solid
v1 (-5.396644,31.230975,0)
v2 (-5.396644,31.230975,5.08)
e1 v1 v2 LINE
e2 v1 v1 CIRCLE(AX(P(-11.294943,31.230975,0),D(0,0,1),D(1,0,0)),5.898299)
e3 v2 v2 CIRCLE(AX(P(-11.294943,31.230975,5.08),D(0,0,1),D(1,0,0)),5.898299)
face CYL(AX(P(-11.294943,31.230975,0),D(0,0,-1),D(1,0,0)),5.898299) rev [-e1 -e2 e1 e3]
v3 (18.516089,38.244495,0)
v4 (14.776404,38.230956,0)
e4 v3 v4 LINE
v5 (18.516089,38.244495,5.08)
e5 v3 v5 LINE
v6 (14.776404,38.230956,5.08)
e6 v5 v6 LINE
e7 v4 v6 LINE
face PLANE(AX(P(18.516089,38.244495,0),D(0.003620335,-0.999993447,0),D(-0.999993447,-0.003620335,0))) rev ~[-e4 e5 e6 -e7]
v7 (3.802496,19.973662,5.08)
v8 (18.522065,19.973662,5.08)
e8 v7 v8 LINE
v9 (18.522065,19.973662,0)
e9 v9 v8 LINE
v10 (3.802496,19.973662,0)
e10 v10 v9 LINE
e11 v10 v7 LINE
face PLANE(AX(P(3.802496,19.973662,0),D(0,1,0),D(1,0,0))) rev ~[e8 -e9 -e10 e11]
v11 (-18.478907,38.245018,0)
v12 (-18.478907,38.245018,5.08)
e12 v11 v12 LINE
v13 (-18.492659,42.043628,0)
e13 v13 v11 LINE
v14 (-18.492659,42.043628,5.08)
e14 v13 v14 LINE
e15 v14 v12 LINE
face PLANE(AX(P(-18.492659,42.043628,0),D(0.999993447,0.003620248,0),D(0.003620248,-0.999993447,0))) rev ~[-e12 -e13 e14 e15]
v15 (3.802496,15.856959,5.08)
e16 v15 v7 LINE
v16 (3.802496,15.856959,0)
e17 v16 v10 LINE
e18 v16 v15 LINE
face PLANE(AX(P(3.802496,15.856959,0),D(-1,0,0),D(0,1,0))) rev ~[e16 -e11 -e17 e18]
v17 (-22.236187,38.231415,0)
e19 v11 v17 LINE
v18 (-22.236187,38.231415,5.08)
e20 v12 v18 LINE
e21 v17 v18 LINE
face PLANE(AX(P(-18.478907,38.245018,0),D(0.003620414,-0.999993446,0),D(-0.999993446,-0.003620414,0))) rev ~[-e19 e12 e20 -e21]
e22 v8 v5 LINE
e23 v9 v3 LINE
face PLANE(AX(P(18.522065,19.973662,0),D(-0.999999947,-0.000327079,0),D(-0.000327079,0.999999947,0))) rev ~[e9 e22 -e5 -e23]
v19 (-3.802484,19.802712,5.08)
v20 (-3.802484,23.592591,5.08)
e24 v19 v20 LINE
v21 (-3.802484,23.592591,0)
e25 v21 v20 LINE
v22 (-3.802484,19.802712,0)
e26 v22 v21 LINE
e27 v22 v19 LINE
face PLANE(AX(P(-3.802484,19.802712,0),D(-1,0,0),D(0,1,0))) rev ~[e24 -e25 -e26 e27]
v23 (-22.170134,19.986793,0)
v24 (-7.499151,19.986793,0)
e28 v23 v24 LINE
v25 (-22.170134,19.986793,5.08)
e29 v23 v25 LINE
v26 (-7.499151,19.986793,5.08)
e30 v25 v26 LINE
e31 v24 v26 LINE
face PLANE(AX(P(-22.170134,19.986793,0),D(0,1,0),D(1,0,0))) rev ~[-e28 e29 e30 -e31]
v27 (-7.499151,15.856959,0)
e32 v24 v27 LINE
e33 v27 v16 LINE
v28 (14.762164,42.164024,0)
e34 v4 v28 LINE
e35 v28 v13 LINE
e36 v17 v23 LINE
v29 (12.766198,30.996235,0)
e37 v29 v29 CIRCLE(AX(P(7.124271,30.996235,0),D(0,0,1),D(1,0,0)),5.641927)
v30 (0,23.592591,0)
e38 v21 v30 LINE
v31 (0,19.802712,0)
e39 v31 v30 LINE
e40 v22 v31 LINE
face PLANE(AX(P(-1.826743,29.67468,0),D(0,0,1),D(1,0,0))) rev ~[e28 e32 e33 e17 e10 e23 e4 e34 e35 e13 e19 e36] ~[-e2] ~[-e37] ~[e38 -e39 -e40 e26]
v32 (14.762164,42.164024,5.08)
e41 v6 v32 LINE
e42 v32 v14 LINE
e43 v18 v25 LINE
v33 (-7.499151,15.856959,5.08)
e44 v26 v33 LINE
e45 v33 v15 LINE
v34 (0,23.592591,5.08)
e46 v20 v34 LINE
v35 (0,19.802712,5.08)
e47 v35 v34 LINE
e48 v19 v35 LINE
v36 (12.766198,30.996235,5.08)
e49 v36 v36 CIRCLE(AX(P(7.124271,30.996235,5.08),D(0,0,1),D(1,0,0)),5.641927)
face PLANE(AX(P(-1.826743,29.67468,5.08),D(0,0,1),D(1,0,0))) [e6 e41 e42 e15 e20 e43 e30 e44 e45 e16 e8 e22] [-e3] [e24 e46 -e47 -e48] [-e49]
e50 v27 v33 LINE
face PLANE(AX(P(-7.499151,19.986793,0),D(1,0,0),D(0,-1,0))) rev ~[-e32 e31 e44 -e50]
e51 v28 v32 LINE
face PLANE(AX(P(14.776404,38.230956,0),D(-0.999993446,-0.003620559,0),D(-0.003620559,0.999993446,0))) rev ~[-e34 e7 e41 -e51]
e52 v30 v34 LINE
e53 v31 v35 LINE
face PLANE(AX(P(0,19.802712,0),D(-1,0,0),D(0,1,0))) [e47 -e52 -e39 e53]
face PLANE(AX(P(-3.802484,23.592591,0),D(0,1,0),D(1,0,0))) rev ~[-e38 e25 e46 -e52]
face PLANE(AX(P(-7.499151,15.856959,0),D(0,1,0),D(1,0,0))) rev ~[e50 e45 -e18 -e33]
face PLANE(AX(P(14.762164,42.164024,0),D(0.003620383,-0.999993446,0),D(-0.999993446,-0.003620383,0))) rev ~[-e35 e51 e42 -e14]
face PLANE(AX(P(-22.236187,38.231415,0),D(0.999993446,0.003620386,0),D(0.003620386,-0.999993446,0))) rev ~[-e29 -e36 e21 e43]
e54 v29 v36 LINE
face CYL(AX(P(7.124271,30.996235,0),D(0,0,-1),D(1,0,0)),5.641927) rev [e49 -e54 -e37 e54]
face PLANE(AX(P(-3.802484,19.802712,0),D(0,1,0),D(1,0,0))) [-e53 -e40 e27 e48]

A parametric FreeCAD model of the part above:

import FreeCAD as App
import Part
import Sketcher

V = App.Vector
Q = App.Units.Quantity

doc = App.newDocument("Part")
params = doc.addObject("Spreadsheet::Sheet", "Params")
for row, (alias, value) in enumerate([
    ("pad1_length", "0.2 in"),
], start=1):
    params.set(f"A{row}", alias)
    params.set(f"B{row}", "=" + value)
    params.setAlias(f"B{row}", alias)

body = doc.addObject("PartDesign::Body", "Body")

# Sketch on XY plane
sketch1 = doc.addObject("Sketcher::SketchObject", "Sketch")
body.addObject(sketch1)
sketch1.AttachmentSupport = (doc.XY_Plane, [""])
sketch1.MapMode = "FlatFace"
sketch1.addGeometry([
    Part.LineSegment(V(-22.236187, 38.231415, 0), V(-22.170134, 19.986793, 0)),  # 0
    Part.LineSegment(V(-22.170134, 19.986793, 0), V(-7.499151, 19.986793, 0)),  # 1
    Part.LineSegment(V(-7.499151, 19.986793, 0), V(-7.499151, 15.856959, 0)),  # 2
    Part.LineSegment(V(-7.499151, 15.856959, 0), V(3.802496, 15.856959, 0)),  # 3
    Part.LineSegment(V(3.802496, 15.856959, 0), V(3.802496, 19.973662, 0)),  # 4
    Part.LineSegment(V(3.802496, 19.973662, 0), V(18.522065, 19.973662, 0)),  # 5
    Part.LineSegment(V(18.522065, 19.973662, 0), V(18.516089, 38.244495, 0)),  # 6
    Part.LineSegment(V(18.516089, 38.244495, 0), V(14.776404, 38.230956, 0)),  # 7
    Part.LineSegment(V(14.776404, 38.230956, 0), V(14.762164, 42.164024, 0)),  # 8
    Part.LineSegment(V(14.762164, 42.164024, 0), V(-18.492659, 42.043628, 0)),  # 9
    Part.LineSegment(V(-18.492659, 42.043628, 0), V(-18.478907, 38.245018, 0)),  # 10
    Part.LineSegment(V(-18.478907, 38.245018, 0), V(-22.236187, 38.231415, 0)),  # 11
    Part.LineSegment(V(0, 19.802712, 0), V(-3.802484, 19.802712, 0)),  # 12
    Part.LineSegment(V(-3.802484, 19.802712, 0), V(-3.802484, 23.592591, 0)),  # 13
    Part.LineSegment(V(-3.802484, 23.592591, 0), V(0, 23.592591, 0)),  # 14
    Part.LineSegment(V(0, 23.592591, 0), V(0, 19.802712, 0)),  # 15
    Part.Circle(V(-11.294943, 31.230975, 0), V(0, 0, 1), 5.898299),  # 16
    Part.Circle(V(7.124271, 30.996235, 0), V(0, 0, 1), 5.641927),  # 17
], False)
sketch1.addConstraint([
    Sketcher.Constraint("Coincident", 0, 2, 1, 1),
    Sketcher.Constraint("Coincident", 1, 2, 2, 1),
    Sketcher.Constraint("Coincident", 2, 2, 3, 1),
    Sketcher.Constraint("Coincident", 3, 2, 4, 1),
    Sketcher.Constraint("Coincident", 4, 2, 5, 1),
    Sketcher.Constraint("Coincident", 5, 2, 6, 1),
    Sketcher.Constraint("Coincident", 6, 2, 7, 1),
    Sketcher.Constraint("Coincident", 7, 2, 8, 1),
    Sketcher.Constraint("Coincident", 8, 2, 9, 1),
    Sketcher.Constraint("Coincident", 9, 2, 10, 1),
    Sketcher.Constraint("Coincident", 10, 2, 11, 1),
    Sketcher.Constraint("Coincident", 11, 2, 0, 1),
    Sketcher.Constraint("Coincident", 12, 2, 13, 1),
    Sketcher.Constraint("Coincident", 13, 2, 14, 1),
    Sketcher.Constraint("Coincident", 14, 2, 15, 1),
    Sketcher.Constraint("Coincident", 15, 2, 12, 1),
    Sketcher.Constraint("Horizontal", 1),
    Sketcher.Constraint("Vertical", 2),
    Sketcher.Constraint("Horizontal", 3),
    Sketcher.Constraint("Vertical", 4),
    Sketcher.Constraint("Horizontal", 5),
    Sketcher.Constraint("Horizontal", 12),
    Sketcher.Constraint("Vertical", 13),
    Sketcher.Constraint("Horizontal", 14),
    Sketcher.Constraint("Vertical", 15),
    Sketcher.Constraint("PointOnObject", 14, 2, -2),
    Sketcher.Constraint("Diameter", 16, Q("11.796598 mm")),
    Sketcher.Constraint("Diameter", 17, Q("11.283854 mm")),
    Sketcher.Constraint("DistanceX", 5, 1, 5, 2, Q("14.719569 mm")),
    Sketcher.Constraint("DistanceY", 13, 1, 13, 2, Q("3.789879 mm")),
    Sketcher.Constraint("DistanceX", 8, 2, 5, 2, Q("3.759901 mm")),
    Sketcher.Constraint("Distance", 0, Q("18.244742 mm")),
    Sketcher.Constraint("Distance", 7, Q("3.73971 mm")),
    Sketcher.Constraint("Distance", 9, Q("33.255041 mm")),
    Sketcher.Constraint("DistanceX", 1, 1, 1, 2, Q("14.670983 mm")),
    Sketcher.Constraint("DistanceX", 3, 1, 3, 2, Q("11.301647 mm")),
    Sketcher.Constraint("DistanceX", 12, 2, 12, 1, Q("3.802484 mm")),
    Sketcher.Constraint("DistanceY", 2, 2, 2, 1, Q("4.129834 mm")),
    Sketcher.Constraint("DistanceY", 4, 1, 4, 2, Q("4.116703 mm")),
    Sketcher.Constraint("DistanceX", -1, 1, 17, 3, Q("7.124271 mm")),
    Sketcher.Constraint("DistanceX", 1, 2, -1, 1, Q("7.499151 mm")),
    Sketcher.Constraint("DistanceY", -1, 1, 2, 2, Q("15.856959 mm")),
    Sketcher.Constraint("DistanceX", -1, 1, 6, 2, Q("18.516089 mm")),
    Sketcher.Constraint("DistanceX", 9, 2, -1, 1, Q("18.492659 mm")),
    Sketcher.Constraint("DistanceY", -1, 1, 10, 2, Q("38.245018 mm")),
    Sketcher.Constraint("DistanceY", -1, 1, 12, 2, Q("19.802712 mm")),
    Sketcher.Constraint("DistanceY", 17, 3, 16, 3, Q("0.23474 mm")),
    Sketcher.Constraint("DistanceX", 0, 2, 16, 3, Q("10.875191 mm")),
    Sketcher.Constraint("DistanceY", 17, 3, 6, 2, Q("7.24826 mm")),
    Sketcher.Constraint("DistanceY", 7, 2, 6, 2, Q("0.013539 mm")),
    Sketcher.Constraint("DistanceY", 6, 2, 8, 2, Q("3.919529 mm")),
    Sketcher.Constraint("DistanceY", 5, 2, 8, 2, Q("22.190362 mm")),
    Sketcher.Constraint("DistanceX", 11, 2, 10, 2, Q("3.75728 mm")),
    Sketcher.Constraint("DistanceX", 11, 2, 9, 2, Q("3.743528 mm")),
])
pad1 = doc.addObject("PartDesign::Pad", "Pad")
body.addObject(pad1)
pad1.Profile = sketch1
pad1.setExpression("Length", "Params.pad1_length")

doc.recompute()
